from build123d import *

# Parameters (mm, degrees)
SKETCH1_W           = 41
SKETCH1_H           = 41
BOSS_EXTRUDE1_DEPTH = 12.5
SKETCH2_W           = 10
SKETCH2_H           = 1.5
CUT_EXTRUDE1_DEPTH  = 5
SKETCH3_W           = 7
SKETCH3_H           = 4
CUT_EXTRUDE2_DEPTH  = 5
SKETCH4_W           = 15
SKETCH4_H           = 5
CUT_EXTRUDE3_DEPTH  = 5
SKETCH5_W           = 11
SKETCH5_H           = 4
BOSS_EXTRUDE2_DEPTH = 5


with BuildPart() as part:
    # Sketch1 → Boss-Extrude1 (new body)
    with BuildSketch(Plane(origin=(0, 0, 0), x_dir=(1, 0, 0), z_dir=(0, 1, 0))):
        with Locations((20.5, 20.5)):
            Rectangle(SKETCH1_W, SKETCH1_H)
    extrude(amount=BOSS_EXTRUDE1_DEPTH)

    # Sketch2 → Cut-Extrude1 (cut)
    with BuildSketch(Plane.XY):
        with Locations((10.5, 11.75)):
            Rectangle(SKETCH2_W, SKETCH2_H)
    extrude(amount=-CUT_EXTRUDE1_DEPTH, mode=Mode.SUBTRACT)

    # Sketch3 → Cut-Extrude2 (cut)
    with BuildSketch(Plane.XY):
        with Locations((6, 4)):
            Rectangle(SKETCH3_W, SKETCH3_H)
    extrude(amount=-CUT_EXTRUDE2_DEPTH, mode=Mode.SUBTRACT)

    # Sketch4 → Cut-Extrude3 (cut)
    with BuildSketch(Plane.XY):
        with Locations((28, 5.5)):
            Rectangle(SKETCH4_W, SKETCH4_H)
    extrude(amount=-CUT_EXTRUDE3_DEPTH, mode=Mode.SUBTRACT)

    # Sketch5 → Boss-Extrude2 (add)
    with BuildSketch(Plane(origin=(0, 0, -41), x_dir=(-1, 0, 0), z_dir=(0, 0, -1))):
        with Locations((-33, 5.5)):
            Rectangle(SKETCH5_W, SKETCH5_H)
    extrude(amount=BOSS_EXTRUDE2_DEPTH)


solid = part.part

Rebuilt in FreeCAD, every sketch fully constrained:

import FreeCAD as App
import Part
import Sketcher
from FreeCAD import Vector


def add_polygon(sketch, points):
    """Adds a closed chain of lines whose ends are joined by coincident constraints."""
    first, n = sketch.GeometryCount, len(points)
    for a, b in zip(points, points[1:] + points[:1]):
        sketch.addGeometry(Part.LineSegment(App.Vector(*a, 0), App.Vector(*b, 0)), False)
    for i in range(n):
        sketch.addConstraint(Sketcher.Constraint("Coincident", first + i, 2, first + (i + 1) % n, 1))

doc = App.newDocument("Part")
body = doc.addObject("PartDesign::Body", "Body")

# Sketch on XZ plane
sketch1 = doc.addObject("Sketcher::SketchObject", "Sketch")
body.addObject(sketch1)
sketch1.AttachmentSupport = (doc.XZ_Plane, [""])
sketch1.MapMode = "FlatFace"
add_polygon(sketch1, [(0, -41), (0, 0), (41, 0), (41, -41)])  # lines 0-3
sketch1.addConstraint([
    Sketcher.Constraint("Vertical", 0),
    Sketcher.Constraint("Horizontal", 1),
    Sketcher.Constraint("Vertical", 2),
    Sketcher.Constraint("Horizontal", 3),
    Sketcher.Constraint("Coincident", 0, 2, -1, 1),
    Sketcher.Constraint("Equal", 3, 0),
    Sketcher.Constraint("DistanceX", 1, 1, 1, 2, 41.0),
])
pad1 = doc.addObject("PartDesign::Pad", "Pad")
body.addObject(pad1)
pad1.Profile = sketch1
pad1.Length = 12.5
pad1.Reversed = True

# Sketch on XY plane
sketch2 = doc.addObject("Sketcher::SketchObject", "Sketch001")
body.addObject(sketch2)
sketch2.AttachmentSupport = (doc.XY_Plane, [""])
sketch2.MapMode = "FlatFace"
add_polygon(sketch2, [(5.5, 12.5), (5.5, 11), (15.5, 11), (15.5, 12.5)])  # lines 0-3
sketch2.addConstraint([
    Sketcher.Constraint("Vertical", 0),
    Sketcher.Constraint("Horizontal", 1),
    Sketcher.Constraint("Vertical", 2),
    Sketcher.Constraint("Horizontal", 3),
    Sketcher.Constraint("DistanceX", 1, 1, 1, 2, 10.0),
    Sketcher.Constraint("DistanceY", 0, 2, 0, 1, 1.5),
    Sketcher.Constraint("DistanceY", -1, 1, 0, 2, 11.0),
    Sketcher.Constraint("DistanceX", -1, 1, 0, 2, 5.5),
])
pocket1 = doc.addObject("PartDesign::Pocket", "Pocket")
body.addObject(pocket1)
pocket1.Profile = sketch2
pocket1.Length = 5

# Sketch on XY plane
sketch3 = doc.addObject("Sketcher::SketchObject", "Sketch002")
body.addObject(sketch3)
sketch3.AttachmentSupport = (doc.XY_Plane, [""])
sketch3.MapMode = "FlatFace"
add_polygon(sketch3, [(2.5, 6), (2.5, 2), (9.5, 2), (9.5, 6)])  # lines 0-3
sketch3.addConstraint([
    Sketcher.Constraint("Vertical", 0),
    Sketcher.Constraint("Horizontal", 1),
    Sketcher.Constraint("Vertical", 2),
    Sketcher.Constraint("Horizontal", 3),
    Sketcher.Constraint("DistanceX", 1, 1, 1, 2, 7.0),
    Sketcher.Constraint("DistanceY", 0, 2, 0, 1, 4.0),
    Sketcher.Constraint("DistanceY", -1, 1, 0, 2, 2.0),
    Sketcher.Constraint("DistanceX", -1, 1, 0, 2, 2.5),
])
pocket2 = doc.addObject("PartDesign::Pocket", "Pocket001")
body.addObject(pocket2)
pocket2.Profile = sketch3
pocket2.Length = 5

# Sketch on XY plane
sketch4 = doc.addObject("Sketcher::SketchObject", "Sketch003")
body.addObject(sketch4)
sketch4.AttachmentSupport = (doc.XY_Plane, [""])
sketch4.MapMode = "FlatFace"
add_polygon(sketch4, [(20, 8), (20, 3), (36, 3), (36, 8)])  # lines 0-3
sketch4.addConstraint([
    Sketcher.Constraint("Vertical", 0),
    Sketcher.Constraint("Horizontal", 1),
    Sketcher.Constraint("Vertical", 2),
    Sketcher.Constraint("Horizontal", 3),
    Sketcher.Constraint("DistanceX", 1, 1, 1, 2, 15.0),
    Sketcher.Constraint("DistanceY", 0, 2, 0, 1, 5.0),
    Sketcher.Constraint("DistanceY", -1, 1, 0, 2, 3.0),
    Sketcher.Constraint("DistanceX", -1, 1, 0, 2, 20.5),
])
pocket3 = doc.addObject("PartDesign::Pocket", "Pocket002")
body.addObject(pocket3)
pocket3.Profile = sketch4
pocket3.Length = 5

# Sketch on XY plane
sketch5 = doc.addObject("Sketcher::SketchObject", "Sketch004")
body.addObject(sketch5)
sketch5.AttachmentSupport = (doc.XY_Plane, [""])
sketch5.MapMode = "FlatFace"
sketch5.AttachmentOffset = App.Placement(Vector(0, 0, -41), App.Rotation())
add_polygon(sketch5, [(38.5, 7.5), (38.5, 3.5), (27.5, 3.5), (27.5, 7.5)])  # lines 0-3
sketch5.addConstraint([
    Sketcher.Constraint("Vertical", 0),
    Sketcher.Constraint("Horizontal", 1),
    Sketcher.Constraint("Vertical", 2),
    Sketcher.Constraint("Horizontal", 3),
    Sketcher.Constraint("DistanceX", 1, 2, 1, 1, 11.0),
    Sketcher.Constraint("DistanceY", 0, 2, 0, 1, 4.0),
    Sketcher.Constraint("DistanceX", -1, 1, 0, 2, 38.5),
    Sketcher.Constraint("DistanceY", -1, 1, 0, 2, 3.5),
])
pad2 = doc.addObject("PartDesign::Pad", "Pad001")
body.addObject(pad2)
pad2.Profile = sketch5
pad2.Length = 5
pad2.Reversed = True

doc.recompute()
